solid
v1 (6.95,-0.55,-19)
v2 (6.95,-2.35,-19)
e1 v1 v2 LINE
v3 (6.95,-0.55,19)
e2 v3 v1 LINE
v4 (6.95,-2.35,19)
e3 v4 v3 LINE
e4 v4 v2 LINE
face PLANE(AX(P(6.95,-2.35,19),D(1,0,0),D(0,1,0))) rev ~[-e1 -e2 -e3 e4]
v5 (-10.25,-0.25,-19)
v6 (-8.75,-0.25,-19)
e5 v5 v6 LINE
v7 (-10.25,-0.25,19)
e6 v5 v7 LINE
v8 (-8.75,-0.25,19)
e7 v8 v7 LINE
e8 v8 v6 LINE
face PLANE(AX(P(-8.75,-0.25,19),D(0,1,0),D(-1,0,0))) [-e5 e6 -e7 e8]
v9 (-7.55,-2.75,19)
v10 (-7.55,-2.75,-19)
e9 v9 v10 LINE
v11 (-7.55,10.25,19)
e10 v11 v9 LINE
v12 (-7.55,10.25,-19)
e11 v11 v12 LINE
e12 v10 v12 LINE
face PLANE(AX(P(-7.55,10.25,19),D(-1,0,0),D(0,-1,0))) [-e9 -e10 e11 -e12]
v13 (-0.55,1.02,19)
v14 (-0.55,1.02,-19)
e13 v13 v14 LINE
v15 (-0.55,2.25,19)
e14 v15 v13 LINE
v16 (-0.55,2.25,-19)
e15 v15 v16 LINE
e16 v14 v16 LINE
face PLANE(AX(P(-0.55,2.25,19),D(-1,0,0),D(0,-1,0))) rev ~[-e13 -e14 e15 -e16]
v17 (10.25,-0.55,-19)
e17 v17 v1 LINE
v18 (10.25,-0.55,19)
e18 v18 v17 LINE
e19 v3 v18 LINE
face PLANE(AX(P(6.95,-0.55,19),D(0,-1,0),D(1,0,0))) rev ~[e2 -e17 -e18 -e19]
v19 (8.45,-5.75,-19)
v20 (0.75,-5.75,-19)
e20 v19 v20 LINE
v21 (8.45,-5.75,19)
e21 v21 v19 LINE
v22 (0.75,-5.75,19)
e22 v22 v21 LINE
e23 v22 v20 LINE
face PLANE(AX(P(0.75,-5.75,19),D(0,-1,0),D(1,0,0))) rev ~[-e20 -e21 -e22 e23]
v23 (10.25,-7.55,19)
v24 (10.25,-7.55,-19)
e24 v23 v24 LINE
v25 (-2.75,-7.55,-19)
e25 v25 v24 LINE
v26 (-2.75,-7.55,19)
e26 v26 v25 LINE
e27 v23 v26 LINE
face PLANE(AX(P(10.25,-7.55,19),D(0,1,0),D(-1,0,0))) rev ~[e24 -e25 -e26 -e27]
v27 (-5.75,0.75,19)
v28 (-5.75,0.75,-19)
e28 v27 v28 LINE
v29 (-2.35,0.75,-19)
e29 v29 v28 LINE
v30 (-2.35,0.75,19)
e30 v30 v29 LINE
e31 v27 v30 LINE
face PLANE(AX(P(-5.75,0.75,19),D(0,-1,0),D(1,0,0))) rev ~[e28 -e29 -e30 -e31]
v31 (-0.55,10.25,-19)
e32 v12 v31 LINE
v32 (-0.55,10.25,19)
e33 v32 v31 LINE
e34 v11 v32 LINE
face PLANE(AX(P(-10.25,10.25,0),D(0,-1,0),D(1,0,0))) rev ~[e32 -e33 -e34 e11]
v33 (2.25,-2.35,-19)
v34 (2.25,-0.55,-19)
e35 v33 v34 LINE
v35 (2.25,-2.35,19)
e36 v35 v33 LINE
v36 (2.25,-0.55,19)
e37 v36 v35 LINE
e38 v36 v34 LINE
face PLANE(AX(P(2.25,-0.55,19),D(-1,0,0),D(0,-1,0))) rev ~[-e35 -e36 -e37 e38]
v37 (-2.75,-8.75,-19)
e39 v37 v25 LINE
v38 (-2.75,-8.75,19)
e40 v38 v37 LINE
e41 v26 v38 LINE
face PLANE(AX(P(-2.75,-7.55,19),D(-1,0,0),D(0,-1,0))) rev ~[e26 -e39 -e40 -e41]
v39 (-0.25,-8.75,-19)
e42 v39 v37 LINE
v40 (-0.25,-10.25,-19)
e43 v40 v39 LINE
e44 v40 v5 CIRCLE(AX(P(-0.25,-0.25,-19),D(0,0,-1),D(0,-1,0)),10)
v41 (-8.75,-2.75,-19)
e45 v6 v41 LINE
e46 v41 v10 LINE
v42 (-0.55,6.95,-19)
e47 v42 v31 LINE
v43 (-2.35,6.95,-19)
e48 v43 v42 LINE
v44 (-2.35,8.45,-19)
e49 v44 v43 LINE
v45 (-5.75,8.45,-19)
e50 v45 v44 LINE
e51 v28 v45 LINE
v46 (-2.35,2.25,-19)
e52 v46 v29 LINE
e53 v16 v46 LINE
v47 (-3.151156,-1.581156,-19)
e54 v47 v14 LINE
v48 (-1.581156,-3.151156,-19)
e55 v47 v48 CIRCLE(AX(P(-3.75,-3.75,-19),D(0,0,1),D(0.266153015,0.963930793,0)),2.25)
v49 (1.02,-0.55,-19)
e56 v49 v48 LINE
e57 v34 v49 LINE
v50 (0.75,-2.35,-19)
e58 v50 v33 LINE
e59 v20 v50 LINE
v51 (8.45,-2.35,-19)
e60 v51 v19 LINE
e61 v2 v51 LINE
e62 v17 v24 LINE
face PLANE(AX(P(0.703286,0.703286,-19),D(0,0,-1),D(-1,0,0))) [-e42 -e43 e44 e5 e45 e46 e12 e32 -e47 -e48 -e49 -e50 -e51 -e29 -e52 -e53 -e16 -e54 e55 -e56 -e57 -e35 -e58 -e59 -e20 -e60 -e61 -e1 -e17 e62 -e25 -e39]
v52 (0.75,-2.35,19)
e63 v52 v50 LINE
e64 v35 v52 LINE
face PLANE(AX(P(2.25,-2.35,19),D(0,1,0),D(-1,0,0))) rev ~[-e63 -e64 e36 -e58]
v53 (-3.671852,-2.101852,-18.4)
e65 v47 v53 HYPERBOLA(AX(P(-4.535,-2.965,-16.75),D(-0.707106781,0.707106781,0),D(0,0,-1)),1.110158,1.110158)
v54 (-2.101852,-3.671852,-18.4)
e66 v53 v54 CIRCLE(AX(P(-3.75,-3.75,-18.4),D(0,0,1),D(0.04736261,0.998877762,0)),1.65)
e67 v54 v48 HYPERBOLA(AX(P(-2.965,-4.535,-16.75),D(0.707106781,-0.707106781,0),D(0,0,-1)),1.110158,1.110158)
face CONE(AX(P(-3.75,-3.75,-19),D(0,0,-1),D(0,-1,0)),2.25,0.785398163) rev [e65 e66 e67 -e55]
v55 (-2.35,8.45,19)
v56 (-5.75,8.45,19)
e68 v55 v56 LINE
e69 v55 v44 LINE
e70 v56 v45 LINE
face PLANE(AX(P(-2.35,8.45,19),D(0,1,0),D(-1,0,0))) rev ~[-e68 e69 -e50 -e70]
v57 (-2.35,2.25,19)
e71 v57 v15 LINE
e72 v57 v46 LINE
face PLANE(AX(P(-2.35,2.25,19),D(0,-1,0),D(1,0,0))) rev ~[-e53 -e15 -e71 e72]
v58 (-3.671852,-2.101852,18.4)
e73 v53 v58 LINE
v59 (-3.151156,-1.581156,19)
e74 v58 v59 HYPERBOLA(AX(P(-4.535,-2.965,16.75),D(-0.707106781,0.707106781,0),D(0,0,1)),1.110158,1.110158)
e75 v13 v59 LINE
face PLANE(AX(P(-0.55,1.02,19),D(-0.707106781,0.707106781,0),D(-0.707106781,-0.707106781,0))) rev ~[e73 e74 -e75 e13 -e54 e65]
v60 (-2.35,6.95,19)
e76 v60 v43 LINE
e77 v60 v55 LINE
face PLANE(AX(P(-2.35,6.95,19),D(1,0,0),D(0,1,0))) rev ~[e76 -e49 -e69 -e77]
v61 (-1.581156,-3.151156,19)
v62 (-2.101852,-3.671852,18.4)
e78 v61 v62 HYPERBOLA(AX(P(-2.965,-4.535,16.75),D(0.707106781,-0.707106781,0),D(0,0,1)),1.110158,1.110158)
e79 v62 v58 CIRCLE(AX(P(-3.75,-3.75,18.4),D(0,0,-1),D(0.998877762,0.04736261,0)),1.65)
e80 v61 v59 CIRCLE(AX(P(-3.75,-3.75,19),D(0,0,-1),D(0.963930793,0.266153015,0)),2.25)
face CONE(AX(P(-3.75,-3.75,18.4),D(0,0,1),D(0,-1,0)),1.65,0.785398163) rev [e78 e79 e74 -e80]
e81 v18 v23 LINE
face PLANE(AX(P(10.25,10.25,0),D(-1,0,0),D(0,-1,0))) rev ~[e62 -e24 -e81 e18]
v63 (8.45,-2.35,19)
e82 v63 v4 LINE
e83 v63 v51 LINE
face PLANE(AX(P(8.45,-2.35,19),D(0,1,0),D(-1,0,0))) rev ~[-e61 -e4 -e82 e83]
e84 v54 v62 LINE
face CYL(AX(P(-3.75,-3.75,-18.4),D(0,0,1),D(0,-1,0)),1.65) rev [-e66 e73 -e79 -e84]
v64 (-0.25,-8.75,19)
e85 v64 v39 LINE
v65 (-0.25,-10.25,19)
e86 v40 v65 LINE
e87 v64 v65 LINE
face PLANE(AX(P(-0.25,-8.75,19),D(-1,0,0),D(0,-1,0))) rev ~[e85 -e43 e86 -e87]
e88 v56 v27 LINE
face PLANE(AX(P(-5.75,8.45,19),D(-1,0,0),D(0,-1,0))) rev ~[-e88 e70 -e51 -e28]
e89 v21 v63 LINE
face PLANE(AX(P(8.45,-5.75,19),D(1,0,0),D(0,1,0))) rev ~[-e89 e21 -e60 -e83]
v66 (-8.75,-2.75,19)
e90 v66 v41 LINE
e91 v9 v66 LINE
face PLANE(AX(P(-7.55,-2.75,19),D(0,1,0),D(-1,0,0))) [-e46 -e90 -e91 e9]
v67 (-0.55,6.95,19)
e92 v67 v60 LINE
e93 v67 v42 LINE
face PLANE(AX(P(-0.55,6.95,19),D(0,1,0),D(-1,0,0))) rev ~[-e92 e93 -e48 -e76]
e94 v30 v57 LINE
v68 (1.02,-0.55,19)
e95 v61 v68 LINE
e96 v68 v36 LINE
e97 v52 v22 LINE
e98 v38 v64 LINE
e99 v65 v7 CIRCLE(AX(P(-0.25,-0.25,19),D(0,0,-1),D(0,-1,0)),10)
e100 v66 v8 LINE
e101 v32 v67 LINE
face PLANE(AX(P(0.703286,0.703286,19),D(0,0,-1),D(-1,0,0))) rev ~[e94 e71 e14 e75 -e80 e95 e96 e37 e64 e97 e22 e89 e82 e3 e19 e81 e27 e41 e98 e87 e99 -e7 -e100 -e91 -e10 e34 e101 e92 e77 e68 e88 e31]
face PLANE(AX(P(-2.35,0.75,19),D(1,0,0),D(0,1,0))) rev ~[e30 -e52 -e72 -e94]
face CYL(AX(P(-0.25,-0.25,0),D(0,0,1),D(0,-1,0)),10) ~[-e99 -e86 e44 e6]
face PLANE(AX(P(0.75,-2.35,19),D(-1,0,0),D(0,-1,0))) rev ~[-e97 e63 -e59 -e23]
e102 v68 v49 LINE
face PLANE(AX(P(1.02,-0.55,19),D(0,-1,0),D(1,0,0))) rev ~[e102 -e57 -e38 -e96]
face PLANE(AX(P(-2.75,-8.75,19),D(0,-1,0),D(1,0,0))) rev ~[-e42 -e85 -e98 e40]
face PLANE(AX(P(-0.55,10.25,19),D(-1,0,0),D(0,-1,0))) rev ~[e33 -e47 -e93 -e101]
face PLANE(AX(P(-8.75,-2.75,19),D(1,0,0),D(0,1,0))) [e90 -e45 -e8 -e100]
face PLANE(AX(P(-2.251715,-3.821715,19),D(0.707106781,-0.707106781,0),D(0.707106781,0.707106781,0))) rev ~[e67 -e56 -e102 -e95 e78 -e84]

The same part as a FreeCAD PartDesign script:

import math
import FreeCAD as App
import Part
import Sketcher
from FreeCAD import Vector
Q = App.Units.Quantity

doc = App.newDocument("Part")
body = doc.addObject("PartDesign::Body", "Body")

# Sketch on XY plane
sketch1 = body.newObject("Sketcher::SketchObject", "Sketch")
sketch1.AttachmentSupport = (doc.getObject("XY_Plane"), [""])
sketch1.MapMode = "FlatFace"
sketch1.addGeometry([
    Part.LineSegment(Vector(10, 10, 0), Vector(-10, 10, 0)),  # 0
    Part.LineSegment(Vector(-10, 10, 0), Vector(-10, 0, 0)),  # 1
    Part.ArcOfCircle(Part.Circle(Vector(0, 0, 0), Vector(0, 0, 1), 10), math.radians(180), math.radians(270)),  # 2
    Part.LineSegment(Vector(0, -10, 0), Vector(10, -10, 0)),  # 3
    Part.LineSegment(Vector(10, -10, 0), Vector(10, 10, 0)),  # 4
], False)
sketch1.addConstraint([
    Sketcher.Constraint("Coincident", 0, 2, 1, 1),
    Sketcher.Constraint("Tangent", 1, 2, 2, 1),
    Sketcher.Constraint("Tangent", 2, 2, 3, 1),
    Sketcher.Constraint("Coincident", 3, 2, 4, 1),
    Sketcher.Constraint("Coincident", 4, 2, 0, 1),
    Sketcher.Constraint("Horizontal", 0),
    Sketcher.Constraint("Vertical", 1),
    Sketcher.Constraint("Horizontal", 3),
    Sketcher.Constraint("Vertical", 4),
    Sketcher.Constraint("Symmetric", 0, 2, 3, 2, -1, 1),
    Sketcher.Constraint("Equal", 3, 1),
    Sketcher.Constraint("Radius", 2, 10.0),
    Sketcher.Constraint("DistanceX", 0, 2, 0, 1, 20.5),
])
pad1 = body.newObject("PartDesign::Pad", "Pad")
pad1.Profile = sketch1
pad1.Length = 38
pad1.Midplane = True

# Sketch on XY plane
sketch2 = body.newObject("Sketcher::SketchObject", "Sketch001")
sketch2.AttachmentSupport = (doc.getObject("XY_Plane"), [""])
sketch2.MapMode = "FlatFace"
sketch2.AttachmentOffset = App.Placement(Vector(0, 0, 19), App.Rotation())
sketch2.addGeometry([
    Part.LineSegment(Vector(10.2, -7.5, 0), Vector(-2.8, -7.5, 0)),  # 0
    Part.LineSegment(Vector(-2.8, -7.5, 0), Vector(-2.8, -8.8, 0)),  # 1
    Part.LineSegment(Vector(-2.8, -8.8, 0), Vector(-0.2, -8.8, 0)),  # 2
    Part.LineSegment(Vector(-0.2, -8.8, 0), Vector(-0.2, -10.2, 0)),  # 3
    Part.LineSegment(Vector(-0.2, -10.2, 0), Vector(10.2, -10.2, 0)),  # 4
    Part.LineSegment(Vector(10.2, -10.2, 0), Vector(10.2, -7.5, 0)),  # 5
    Part.LineSegment(Vector(-7.5, -2.8, 0), Vector(-7.5, 10.2, 0)),  # 6
    Part.LineSegment(Vector(-7.5, 10.2, 0), Vector(-10.2, 10.2, 0)),  # 7
    Part.LineSegment(Vector(-10.2, 10.2, 0), Vector(-10.2, -0.2, 0)),  # 8
    Part.LineSegment(Vector(-10.2, -0.2, 0), Vector(-8.8, -0.2, 0)),  # 9
    Part.LineSegment(Vector(-8.8, -0.2, 0), Vector(-8.8, -2.8, 0)),  # 10
    Part.LineSegment(Vector(-8.8, -2.8, 0), Vector(-7.5, -2.8, 0)),  # 11
], False)
sketch2.addConstraint([
    Sketcher.Constraint("Coincident", 0, 2, 1, 1),
    Sketcher.Constraint("Coincident", 1, 2, 2, 1),
    Sketcher.Constraint("Coincident", 2, 2, 3, 1),
    Sketcher.Constraint("Coincident", 3, 2, 4, 1),
    Sketcher.Constraint("Coincident", 4, 2, 5, 1),
    Sketcher.Constraint("Coincident", 5, 2, 0, 1),
    Sketcher.Constraint("Coincident", 6, 2, 7, 1),
    Sketcher.Constraint("Coincident", 7, 2, 8, 1),
    Sketcher.Constraint("Coincident", 8, 2, 9, 1),
    Sketcher.Constraint("Coincident", 9, 2, 10, 1),
    Sketcher.Constraint("Coincident", 10, 2, 11, 1),
    Sketcher.Constraint("Coincident", 11, 2, 6, 1),
    Sketcher.Constraint("Horizontal", 0),
    Sketcher.Constraint("Vertical", 1),
    Sketcher.Constraint("Horizontal", 2),
    Sketcher.Constraint("Vertical", 3),
    Sketcher.Constraint("Horizontal", 4),
    Sketcher.Constraint("Vertical", 5),
    Sketcher.Constraint("Vertical", 6),
    Sketcher.Constraint("Horizontal", 7),
    Sketcher.Constraint("Vertical", 8),
    Sketcher.Constraint("Horizontal", 9),
    Sketcher.Constraint("Vertical", 10),
    Sketcher.Constraint("Horizontal", 11),
    Sketcher.Constraint("Symmetric", 4, 2, 7, 2, -1, 1),
    Sketcher.Constraint("Equal", 11, 1),
    Sketcher.Constraint("Equal", 9, 3),
    Sketcher.Constraint("Equal", 0, 6),
    Sketcher.Constraint("Equal", 4, 8),
    Sketcher.Constraint("DistanceX", 0, 2, 0, 1, 13.0),
    Sketcher.Constraint("DistanceX", 2, 1, 2, 2, 2.5),
    Sketcher.Constraint("DistanceX", 7, 2, 7, 1, 2.7),
    Sketcher.Constraint("DistanceX", 9, 1, 9, 2, 1.5),
    Sketcher.Constraint("DistanceY", 1, 2, 6, 2, 19.0),
    Sketcher.Constraint("DistanceX", 7, 2, 2, 2, 10.0),
])
pocket1 = body.newObject("PartDesign::Pocket", "Pocket")
pocket1.Profile = sketch2
pocket1.Type = "ThroughAll"

# Sketch on XY plane
sketch3 = body.newObject("Sketcher::SketchObject", "Sketch002")
sketch3.AttachmentSupport = (doc.getObject("XY_Plane"), [""])
sketch3.MapMode = "FlatFace"
sketch3.AttachmentOffset = App.Placement(Vector(0, 0, 19), App.Rotation())
sketch3.addGeometry([
    Part.LineSegment(Vector(-0.6, 10.2, 0), Vector(-0.6, 7, 0)),  # 0
    Part.LineSegment(Vector(-0.6, 7, 0), Vector(-2.4, 7, 0)),  # 1
    Part.LineSegment(Vector(-2.4, 7, 0), Vector(-2.4, 8.4, 0)),  # 2
    Part.LineSegment(Vector(-2.4, 8.4, 0), Vector(-5.8, 8.4, 0)),  # 3
    Part.LineSegment(Vector(-5.8, 8.4, 0), Vector(-5.8, 0.8, 0)),  # 4
    Part.LineSegment(Vector(-5.8, 0.8, 0), Vector(-2.4, 0.8, 0)),  # 5
    Part.LineSegment(Vector(-2.4, 0.8, 0), Vector(-2.4, 2.2, 0)),  # 6
    Part.LineSegment(Vector(-2.4, 2.2, 0), Vector(-0.6, 2.2, 0)),  # 7
    Part.LineSegment(Vector(-0.6, 2.2, 0), Vector(-0.6, 1, 0)),  # 8
    Part.LineSegment(Vector(-0.6, 1, 0), Vector(-3.8, -2.3, 0)),  # 9
    Part.ArcOfCircle(Part.Circle(Vector(-3.8, -3.8, 0), Vector(0, 0, 1), 1.5), math.radians(93), math.radians(357)),  # 10
    Part.LineSegment(Vector(-2.3, -3.8, 0), Vector(1, -0.6, 0)),  # 11
    Part.LineSegment(Vector(1, -0.6, 0), Vector(2.2, -0.6, 0)),  # 12
    Part.LineSegment(Vector(2.2, -0.6, 0), Vector(2.2, -2.4, 0)),  # 13
    Part.LineSegment(Vector(2.2, -2.4, 0), Vector(0.8, -2.4, 0)),  # 14
    Part.LineSegment(Vector(0.8, -2.4, 0), Vector(0.8, -5.8, 0)),  # 15
    Part.LineSegment(Vector(0.8, -5.8, 0), Vector(8.4, -5.8, 0)),  # 16
    Part.LineSegment(Vector(8.4, -5.8, 0), Vector(8.4, -2.4, 0)),  # 17
    Part.LineSegment(Vector(8.4, -2.4, 0), Vector(7, -2.4, 0)),  # 18
    Part.LineSegment(Vector(7, -2.4, 0), Vector(7, -0.6, 0)),  # 19
    Part.LineSegment(Vector(7, -0.6, 0), Vector(10.2, -0.6, 0)),  # 20
    Part.LineSegment(Vector(10.2, -0.6, 0), Vector(10.2, 10.2, 0)),  # 21
    Part.LineSegment(Vector(10.2, 10.2, 0), Vector(-0.6, 10.2, 0)),  # 22
], False)
sketch3.addConstraint([
    Sketcher.Constraint("Coincident", 0, 2, 1, 1),
    Sketcher.Constraint("Coincident", 1, 2, 2, 1),
    Sketcher.Constraint("Coincident", 2, 2, 3, 1),
    Sketcher.Constraint("Coincident", 3, 2, 4, 1),
    Sketcher.Constraint("Coincident", 4, 2, 5, 1),
    Sketcher.Constraint("Coincident", 5, 2, 6, 1),
    Sketcher.Constraint("Coincident", 6, 2, 7, 1),
    Sketcher.Constraint("Coincident", 7, 2, 8, 1),
    Sketcher.Constraint("Coincident", 8, 2, 9, 1),
    Sketcher.Constraint("Coincident", 9, 2, 10, 1),
    Sketcher.Constraint("Coincident", 10, 2, 11, 1),
    Sketcher.Constraint("Coincident", 11, 2, 12, 1),
    Sketcher.Constraint("Coincident", 12, 2, 13, 1),
    Sketcher.Constraint("Coincident", 13, 2, 14, 1),
    Sketcher.Constraint("Coincident", 14, 2, 15, 1),
    Sketcher.Constraint("Coincident", 15, 2, 16, 1),
    Sketcher.Constraint("Coincident", 16, 2, 17, 1),
    Sketcher.Constraint("Coincident", 17, 2, 18, 1),
    Sketcher.Constraint("Coincident", 18, 2, 19, 1),
    Sketcher.Constraint("Coincident", 19, 2, 20, 1),
    Sketcher.Constraint("Coincident", 20, 2, 21, 1),
    Sketcher.Constraint("Coincident", 21, 2, 22, 1),
    Sketcher.Constraint("Coincident", 22, 2, 0, 1),
    Sketcher.Constraint("Vertical", 0),
    Sketcher.Constraint("Horizontal", 1),
    Sketcher.Constraint("Vertical", 2),
    Sketcher.Constraint("Horizontal", 3),
    Sketcher.Constraint("Vertical", 4),
    Sketcher.Constraint("Horizontal", 5),
    Sketcher.Constraint("Vertical", 6),
    Sketcher.Constraint("Horizontal", 7),
    Sketcher.Constraint("Vertical", 8),
    Sketcher.Constraint("Horizontal", 12),
    Sketcher.Constraint("Vertical", 13),
    Sketcher.Constraint("Horizontal", 14),
    Sketcher.Constraint("Vertical", 15),
    Sketcher.Constraint("Horizontal", 16),
    Sketcher.Constraint("Vertical", 17),
    Sketcher.Constraint("Horizontal", 18),
    Sketcher.Constraint("Vertical", 19),
    Sketcher.Constraint("Horizontal", 20),
    Sketcher.Constraint("Vertical", 21),
    Sketcher.Constraint("Horizontal", 22),
    Sketcher.Constraint("Parallel", 9, 11),
    Sketcher.Constraint("Horizontal", 14, 2, 17, 2),
    Sketcher.Constraint("Horizontal", 12, 2, 19, 2),
    Sketcher.Constraint("Vertical", 2, 2, 5, 2),
    Sketcher.Constraint("Vertical", 0, 2, 7, 2),
    Sketcher.Constraint("Equal", 14, 18),
    Sketcher.Constraint("Equal", 20, 0),
    Sketcher.Constraint("Equal", 18, 2),
    Sketcher.Constraint("Equal", 16, 4),
    Sketcher.Constraint("Equal", 2, 6),
    Sketcher.Constraint("Equal", 12, 8),
    Sketcher.Constraint("Equal", 7, 13),
    Sketcher.Constraint("Equal", 5, 15),
    Sketcher.Constraint("Equal", 22, 21),
    Sketcher.Constraint("Equal", 9, 11),
    Sketcher.Constraint("Radius", 10, 1.5),
    Sketcher.Constraint("Angle", 9, Q("-135 deg")),
    Sketcher.Constraint("DistanceX", 1, 2, 1, 1, 1.8),
    Sketcher.Constraint("DistanceX", 3, 2, 3, 1, 3.4),
    Sketcher.Constraint("DistanceX", 14, 2, 14, 1, 1.5),
    Sketcher.Constraint("DistanceX", 16, 1, 16, 2, 7.7),
    Sketcher.Constraint("DistanceX", 20, 1, 20, 2, 3.3),
    Sketcher.Constraint("DistanceX", 22, 2, 22, 1, 10.8),
    Sketcher.Constraint("DistanceX", 3, 2, 10, 3, 2.0),
    Sketcher.Constraint("DistanceX", 12, 1, 12, 2, 1.23),
    Sketcher.Constraint("DistanceX", 10, 3, -1, 1, 3.75),
    Sketcher.Constraint("DistanceY", 10, 3, -1, 1, 3.75),
])
pocket2 = body.newObject("PartDesign::Pocket", "Pocket001")
pocket2.Profile = sketch3
pocket2.Type = "ThroughAll"

# Sketch on YZ plane
sketch4 = body.newObject("Sketcher::SketchObject", "Sketch003")
sketch4.AttachmentSupport = (doc.getObject("YZ_Plane"), [""])
sketch4.MapMode = "FlatFace"
sketch4.AttachmentOffset = App.Placement(Vector(0, 0, -3.75), App.Rotation())
sketch4.addGeometry([
    Part.LineSegment(Vector(-3.8, -19, 0), Vector(-3.8, 19, 0)),  # 0
    Part.LineSegment(Vector(-3.8, 19, 0), Vector(-6, 19, 0)),  # 1
    Part.LineSegment(Vector(-6, 19, 0), Vector(-5.4, 18.4, 0)),  # 2
    Part.LineSegment(Vector(-5.4, 18.4, 0), Vector(-5.4, -18.4, 0)),  # 3
    Part.LineSegment(Vector(-5.4, -18.4, 0), Vector(-6, -19, 0)),  # 4
    Part.LineSegment(Vector(-6, -19, 0), Vector(-3.8, -19, 0)),  # 5
], False)
sketch4.addGeometry(Part.LineSegment(Vector(-3.8, 19, 0), Vector(-3.8, -19, 0)), True)  # axis
sketch4.addConstraint([
    Sketcher.Constraint("Coincident", 0, 2, 1, 1),
    Sketcher.Constraint("Coincident", 1, 2, 2, 1),
    Sketcher.Constraint("Coincident", 2, 2, 3, 1),
    Sketcher.Constraint("Coincident", 3, 2, 4, 1),
    Sketcher.Constraint("Coincident", 4, 2, 5, 1),
    Sketcher.Constraint("Coincident", 5, 2, 0, 1),
    Sketcher.Constraint("Vertical", 0),
    Sketcher.Constraint("Horizontal", 1),
    Sketcher.Constraint("Vertical", 3),
    Sketcher.Constraint("Horizontal", 5),
    Sketcher.Constraint("Vertical", 6),
    Sketcher.Constraint("Coincident", 6, 1, 0, 2),
    Sketcher.Constraint("Symmetric", 1, 2, 4, 2, -1),
    Sketcher.Constraint("Perpendicular", 2, 4),
    Sketcher.Constraint("Horizontal", 4, 2, 6, 2),
    Sketcher.Constraint("Equal", 2, 4),
    Sketcher.Constraint("DistanceY", 0, 1, 0, 2, 38.0),
    Sketcher.Constraint("DistanceY", 3, 2, 3, 1, 36.8),
    Sketcher.Constraint("DistanceX", 1, 2, -1, 1, 6.0),
    Sketcher.Constraint("DistanceX", 1, 2, 1, 1, 2.25),
])
groove = body.newObject("PartDesign::Groove", "Groove")
groove.Profile = sketch4
groove.ReferenceAxis = (sketch4, ["Axis0"])
groove.Angle = 360

doc.recompute()
